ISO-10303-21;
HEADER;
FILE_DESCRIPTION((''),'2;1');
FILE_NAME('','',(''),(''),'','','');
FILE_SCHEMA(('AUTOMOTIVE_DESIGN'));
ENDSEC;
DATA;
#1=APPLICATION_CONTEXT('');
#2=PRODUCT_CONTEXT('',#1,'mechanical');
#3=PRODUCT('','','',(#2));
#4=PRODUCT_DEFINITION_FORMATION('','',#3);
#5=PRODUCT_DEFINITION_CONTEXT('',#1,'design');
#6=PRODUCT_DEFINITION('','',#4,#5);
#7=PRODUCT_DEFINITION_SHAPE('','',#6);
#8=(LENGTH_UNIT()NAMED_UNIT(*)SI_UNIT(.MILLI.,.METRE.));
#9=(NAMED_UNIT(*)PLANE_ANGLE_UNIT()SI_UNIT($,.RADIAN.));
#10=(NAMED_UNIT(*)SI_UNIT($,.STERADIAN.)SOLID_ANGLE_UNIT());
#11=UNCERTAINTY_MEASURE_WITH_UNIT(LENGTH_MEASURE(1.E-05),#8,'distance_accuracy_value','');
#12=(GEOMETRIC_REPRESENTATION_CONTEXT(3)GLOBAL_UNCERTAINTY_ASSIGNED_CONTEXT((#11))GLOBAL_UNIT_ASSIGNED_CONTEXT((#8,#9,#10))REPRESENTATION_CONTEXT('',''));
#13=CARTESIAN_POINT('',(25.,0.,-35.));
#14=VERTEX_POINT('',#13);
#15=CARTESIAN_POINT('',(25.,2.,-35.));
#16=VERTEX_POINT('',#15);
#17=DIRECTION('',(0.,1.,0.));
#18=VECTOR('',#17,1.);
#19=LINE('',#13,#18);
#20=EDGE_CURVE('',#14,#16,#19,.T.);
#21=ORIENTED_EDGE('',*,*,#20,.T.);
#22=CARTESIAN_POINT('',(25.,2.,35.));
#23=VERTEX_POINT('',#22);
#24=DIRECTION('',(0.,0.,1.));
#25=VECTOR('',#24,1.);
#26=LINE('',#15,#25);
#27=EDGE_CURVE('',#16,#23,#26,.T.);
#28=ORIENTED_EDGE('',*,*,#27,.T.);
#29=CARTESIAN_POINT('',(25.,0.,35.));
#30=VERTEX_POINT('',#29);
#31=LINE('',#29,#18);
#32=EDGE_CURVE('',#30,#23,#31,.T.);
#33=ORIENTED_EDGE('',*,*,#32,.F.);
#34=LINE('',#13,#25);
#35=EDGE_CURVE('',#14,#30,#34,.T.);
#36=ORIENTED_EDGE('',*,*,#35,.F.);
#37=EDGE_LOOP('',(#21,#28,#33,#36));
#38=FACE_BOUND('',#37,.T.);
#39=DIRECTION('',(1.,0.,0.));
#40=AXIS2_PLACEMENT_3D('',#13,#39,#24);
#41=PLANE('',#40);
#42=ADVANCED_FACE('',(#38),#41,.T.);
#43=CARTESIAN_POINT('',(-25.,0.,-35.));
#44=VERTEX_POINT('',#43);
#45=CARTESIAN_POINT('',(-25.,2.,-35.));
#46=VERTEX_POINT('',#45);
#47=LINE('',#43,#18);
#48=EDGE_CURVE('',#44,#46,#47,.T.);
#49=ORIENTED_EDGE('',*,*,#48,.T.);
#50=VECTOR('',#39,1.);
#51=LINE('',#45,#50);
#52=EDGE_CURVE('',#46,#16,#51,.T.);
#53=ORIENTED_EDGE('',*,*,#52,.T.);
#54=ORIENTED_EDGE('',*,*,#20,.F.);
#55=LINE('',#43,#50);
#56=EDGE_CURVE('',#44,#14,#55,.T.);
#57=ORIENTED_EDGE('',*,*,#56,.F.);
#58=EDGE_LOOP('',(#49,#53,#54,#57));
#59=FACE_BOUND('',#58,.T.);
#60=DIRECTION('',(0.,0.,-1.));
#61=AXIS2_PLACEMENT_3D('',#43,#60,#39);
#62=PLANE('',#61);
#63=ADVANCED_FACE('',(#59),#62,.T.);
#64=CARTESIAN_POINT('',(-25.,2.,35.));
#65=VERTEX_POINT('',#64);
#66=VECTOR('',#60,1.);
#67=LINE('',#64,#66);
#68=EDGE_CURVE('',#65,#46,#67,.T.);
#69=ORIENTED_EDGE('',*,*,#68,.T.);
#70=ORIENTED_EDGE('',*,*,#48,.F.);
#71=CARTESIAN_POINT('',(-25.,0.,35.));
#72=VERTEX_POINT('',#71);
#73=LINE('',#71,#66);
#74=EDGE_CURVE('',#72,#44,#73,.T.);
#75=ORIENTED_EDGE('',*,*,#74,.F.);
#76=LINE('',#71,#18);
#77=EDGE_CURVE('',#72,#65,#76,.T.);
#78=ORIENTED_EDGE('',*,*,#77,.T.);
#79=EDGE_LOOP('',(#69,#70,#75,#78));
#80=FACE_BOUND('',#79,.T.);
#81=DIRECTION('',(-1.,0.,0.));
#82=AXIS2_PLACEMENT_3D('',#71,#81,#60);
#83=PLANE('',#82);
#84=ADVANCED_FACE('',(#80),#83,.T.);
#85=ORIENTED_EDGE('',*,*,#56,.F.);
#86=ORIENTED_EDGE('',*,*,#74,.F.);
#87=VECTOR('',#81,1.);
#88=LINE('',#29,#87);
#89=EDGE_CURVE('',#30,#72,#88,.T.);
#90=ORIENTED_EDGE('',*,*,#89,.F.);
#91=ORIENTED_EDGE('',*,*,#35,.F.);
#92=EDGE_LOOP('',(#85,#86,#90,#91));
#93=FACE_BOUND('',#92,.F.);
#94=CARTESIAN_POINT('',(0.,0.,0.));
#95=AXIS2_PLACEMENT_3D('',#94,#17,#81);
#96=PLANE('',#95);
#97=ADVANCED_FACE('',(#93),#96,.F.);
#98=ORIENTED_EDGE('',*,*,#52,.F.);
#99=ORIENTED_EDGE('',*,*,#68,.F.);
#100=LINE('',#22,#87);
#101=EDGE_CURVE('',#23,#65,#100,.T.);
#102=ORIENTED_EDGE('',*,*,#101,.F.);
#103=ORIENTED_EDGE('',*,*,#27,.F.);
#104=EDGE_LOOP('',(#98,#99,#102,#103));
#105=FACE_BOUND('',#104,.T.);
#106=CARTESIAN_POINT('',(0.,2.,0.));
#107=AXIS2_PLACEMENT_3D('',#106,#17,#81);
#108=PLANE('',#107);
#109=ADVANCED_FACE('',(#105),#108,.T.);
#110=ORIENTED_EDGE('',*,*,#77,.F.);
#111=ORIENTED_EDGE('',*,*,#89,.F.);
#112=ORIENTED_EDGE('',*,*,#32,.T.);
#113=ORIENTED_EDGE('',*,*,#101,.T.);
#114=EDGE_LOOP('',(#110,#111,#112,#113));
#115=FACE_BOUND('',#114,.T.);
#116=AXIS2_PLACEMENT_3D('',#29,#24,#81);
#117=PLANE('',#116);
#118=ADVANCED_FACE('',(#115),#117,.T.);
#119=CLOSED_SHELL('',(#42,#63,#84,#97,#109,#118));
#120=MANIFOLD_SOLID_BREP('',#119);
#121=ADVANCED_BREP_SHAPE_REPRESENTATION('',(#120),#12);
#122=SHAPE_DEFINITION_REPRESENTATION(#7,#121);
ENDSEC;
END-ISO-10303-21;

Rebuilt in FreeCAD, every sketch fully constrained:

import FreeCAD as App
import Part
import Sketcher
Q = App.Units.Quantity


def add_polygon(sketch, points):
    """Adds a closed chain of lines whose ends are joined by coincident constraints."""
    first, n = sketch.GeometryCount, len(points)
    for a, b in zip(points, points[1:] + points[:1]):
        sketch.addGeometry(Part.LineSegment(App.Vector(*a, 0), App.Vector(*b, 0)), False)
    for i in range(n):
        sketch.addConstraint(Sketcher.Constraint("Coincident", first + i, 2, first + (i + 1) % n, 1))

doc = App.newDocument("Part")
body = doc.addObject("PartDesign::Body", "Body")

sketch1 = body.newObject("Sketcher::SketchObject", "Sketch")
sketch1.AttachmentSupport = (doc.getObject("XZ_Plane"), [""])
sketch1.MapMode = "FlatFace"
add_polygon(sketch1, [(-25, 35), (25, 35), (25, -35), (-25, -35)])
sketch1.addConstraint(Sketcher.Constraint("Horizontal", 0))
sketch1.addConstraint(Sketcher.Constraint("Vertical", 1))
sketch1.addConstraint(Sketcher.Constraint("Horizontal", 2))
sketch1.addConstraint(Sketcher.Constraint("Vertical", 3))
sketch1.addConstraint(Sketcher.Constraint("Symmetric", 0, 2, 2, 2, -1, 1))
sketch1.addConstraint(Sketcher.Constraint("DistanceX", 0, 1, 0, 2, Q("50 mm")))
sketch1.addConstraint(Sketcher.Constraint("DistanceY", 1, 2, 1, 1, Q("70 mm")))
pad1 = body.newObject("PartDesign::Pad", "Pad")
pad1.Profile = sketch1
pad1.Length = 2
pad1.Reversed = True

doc.recompute()
